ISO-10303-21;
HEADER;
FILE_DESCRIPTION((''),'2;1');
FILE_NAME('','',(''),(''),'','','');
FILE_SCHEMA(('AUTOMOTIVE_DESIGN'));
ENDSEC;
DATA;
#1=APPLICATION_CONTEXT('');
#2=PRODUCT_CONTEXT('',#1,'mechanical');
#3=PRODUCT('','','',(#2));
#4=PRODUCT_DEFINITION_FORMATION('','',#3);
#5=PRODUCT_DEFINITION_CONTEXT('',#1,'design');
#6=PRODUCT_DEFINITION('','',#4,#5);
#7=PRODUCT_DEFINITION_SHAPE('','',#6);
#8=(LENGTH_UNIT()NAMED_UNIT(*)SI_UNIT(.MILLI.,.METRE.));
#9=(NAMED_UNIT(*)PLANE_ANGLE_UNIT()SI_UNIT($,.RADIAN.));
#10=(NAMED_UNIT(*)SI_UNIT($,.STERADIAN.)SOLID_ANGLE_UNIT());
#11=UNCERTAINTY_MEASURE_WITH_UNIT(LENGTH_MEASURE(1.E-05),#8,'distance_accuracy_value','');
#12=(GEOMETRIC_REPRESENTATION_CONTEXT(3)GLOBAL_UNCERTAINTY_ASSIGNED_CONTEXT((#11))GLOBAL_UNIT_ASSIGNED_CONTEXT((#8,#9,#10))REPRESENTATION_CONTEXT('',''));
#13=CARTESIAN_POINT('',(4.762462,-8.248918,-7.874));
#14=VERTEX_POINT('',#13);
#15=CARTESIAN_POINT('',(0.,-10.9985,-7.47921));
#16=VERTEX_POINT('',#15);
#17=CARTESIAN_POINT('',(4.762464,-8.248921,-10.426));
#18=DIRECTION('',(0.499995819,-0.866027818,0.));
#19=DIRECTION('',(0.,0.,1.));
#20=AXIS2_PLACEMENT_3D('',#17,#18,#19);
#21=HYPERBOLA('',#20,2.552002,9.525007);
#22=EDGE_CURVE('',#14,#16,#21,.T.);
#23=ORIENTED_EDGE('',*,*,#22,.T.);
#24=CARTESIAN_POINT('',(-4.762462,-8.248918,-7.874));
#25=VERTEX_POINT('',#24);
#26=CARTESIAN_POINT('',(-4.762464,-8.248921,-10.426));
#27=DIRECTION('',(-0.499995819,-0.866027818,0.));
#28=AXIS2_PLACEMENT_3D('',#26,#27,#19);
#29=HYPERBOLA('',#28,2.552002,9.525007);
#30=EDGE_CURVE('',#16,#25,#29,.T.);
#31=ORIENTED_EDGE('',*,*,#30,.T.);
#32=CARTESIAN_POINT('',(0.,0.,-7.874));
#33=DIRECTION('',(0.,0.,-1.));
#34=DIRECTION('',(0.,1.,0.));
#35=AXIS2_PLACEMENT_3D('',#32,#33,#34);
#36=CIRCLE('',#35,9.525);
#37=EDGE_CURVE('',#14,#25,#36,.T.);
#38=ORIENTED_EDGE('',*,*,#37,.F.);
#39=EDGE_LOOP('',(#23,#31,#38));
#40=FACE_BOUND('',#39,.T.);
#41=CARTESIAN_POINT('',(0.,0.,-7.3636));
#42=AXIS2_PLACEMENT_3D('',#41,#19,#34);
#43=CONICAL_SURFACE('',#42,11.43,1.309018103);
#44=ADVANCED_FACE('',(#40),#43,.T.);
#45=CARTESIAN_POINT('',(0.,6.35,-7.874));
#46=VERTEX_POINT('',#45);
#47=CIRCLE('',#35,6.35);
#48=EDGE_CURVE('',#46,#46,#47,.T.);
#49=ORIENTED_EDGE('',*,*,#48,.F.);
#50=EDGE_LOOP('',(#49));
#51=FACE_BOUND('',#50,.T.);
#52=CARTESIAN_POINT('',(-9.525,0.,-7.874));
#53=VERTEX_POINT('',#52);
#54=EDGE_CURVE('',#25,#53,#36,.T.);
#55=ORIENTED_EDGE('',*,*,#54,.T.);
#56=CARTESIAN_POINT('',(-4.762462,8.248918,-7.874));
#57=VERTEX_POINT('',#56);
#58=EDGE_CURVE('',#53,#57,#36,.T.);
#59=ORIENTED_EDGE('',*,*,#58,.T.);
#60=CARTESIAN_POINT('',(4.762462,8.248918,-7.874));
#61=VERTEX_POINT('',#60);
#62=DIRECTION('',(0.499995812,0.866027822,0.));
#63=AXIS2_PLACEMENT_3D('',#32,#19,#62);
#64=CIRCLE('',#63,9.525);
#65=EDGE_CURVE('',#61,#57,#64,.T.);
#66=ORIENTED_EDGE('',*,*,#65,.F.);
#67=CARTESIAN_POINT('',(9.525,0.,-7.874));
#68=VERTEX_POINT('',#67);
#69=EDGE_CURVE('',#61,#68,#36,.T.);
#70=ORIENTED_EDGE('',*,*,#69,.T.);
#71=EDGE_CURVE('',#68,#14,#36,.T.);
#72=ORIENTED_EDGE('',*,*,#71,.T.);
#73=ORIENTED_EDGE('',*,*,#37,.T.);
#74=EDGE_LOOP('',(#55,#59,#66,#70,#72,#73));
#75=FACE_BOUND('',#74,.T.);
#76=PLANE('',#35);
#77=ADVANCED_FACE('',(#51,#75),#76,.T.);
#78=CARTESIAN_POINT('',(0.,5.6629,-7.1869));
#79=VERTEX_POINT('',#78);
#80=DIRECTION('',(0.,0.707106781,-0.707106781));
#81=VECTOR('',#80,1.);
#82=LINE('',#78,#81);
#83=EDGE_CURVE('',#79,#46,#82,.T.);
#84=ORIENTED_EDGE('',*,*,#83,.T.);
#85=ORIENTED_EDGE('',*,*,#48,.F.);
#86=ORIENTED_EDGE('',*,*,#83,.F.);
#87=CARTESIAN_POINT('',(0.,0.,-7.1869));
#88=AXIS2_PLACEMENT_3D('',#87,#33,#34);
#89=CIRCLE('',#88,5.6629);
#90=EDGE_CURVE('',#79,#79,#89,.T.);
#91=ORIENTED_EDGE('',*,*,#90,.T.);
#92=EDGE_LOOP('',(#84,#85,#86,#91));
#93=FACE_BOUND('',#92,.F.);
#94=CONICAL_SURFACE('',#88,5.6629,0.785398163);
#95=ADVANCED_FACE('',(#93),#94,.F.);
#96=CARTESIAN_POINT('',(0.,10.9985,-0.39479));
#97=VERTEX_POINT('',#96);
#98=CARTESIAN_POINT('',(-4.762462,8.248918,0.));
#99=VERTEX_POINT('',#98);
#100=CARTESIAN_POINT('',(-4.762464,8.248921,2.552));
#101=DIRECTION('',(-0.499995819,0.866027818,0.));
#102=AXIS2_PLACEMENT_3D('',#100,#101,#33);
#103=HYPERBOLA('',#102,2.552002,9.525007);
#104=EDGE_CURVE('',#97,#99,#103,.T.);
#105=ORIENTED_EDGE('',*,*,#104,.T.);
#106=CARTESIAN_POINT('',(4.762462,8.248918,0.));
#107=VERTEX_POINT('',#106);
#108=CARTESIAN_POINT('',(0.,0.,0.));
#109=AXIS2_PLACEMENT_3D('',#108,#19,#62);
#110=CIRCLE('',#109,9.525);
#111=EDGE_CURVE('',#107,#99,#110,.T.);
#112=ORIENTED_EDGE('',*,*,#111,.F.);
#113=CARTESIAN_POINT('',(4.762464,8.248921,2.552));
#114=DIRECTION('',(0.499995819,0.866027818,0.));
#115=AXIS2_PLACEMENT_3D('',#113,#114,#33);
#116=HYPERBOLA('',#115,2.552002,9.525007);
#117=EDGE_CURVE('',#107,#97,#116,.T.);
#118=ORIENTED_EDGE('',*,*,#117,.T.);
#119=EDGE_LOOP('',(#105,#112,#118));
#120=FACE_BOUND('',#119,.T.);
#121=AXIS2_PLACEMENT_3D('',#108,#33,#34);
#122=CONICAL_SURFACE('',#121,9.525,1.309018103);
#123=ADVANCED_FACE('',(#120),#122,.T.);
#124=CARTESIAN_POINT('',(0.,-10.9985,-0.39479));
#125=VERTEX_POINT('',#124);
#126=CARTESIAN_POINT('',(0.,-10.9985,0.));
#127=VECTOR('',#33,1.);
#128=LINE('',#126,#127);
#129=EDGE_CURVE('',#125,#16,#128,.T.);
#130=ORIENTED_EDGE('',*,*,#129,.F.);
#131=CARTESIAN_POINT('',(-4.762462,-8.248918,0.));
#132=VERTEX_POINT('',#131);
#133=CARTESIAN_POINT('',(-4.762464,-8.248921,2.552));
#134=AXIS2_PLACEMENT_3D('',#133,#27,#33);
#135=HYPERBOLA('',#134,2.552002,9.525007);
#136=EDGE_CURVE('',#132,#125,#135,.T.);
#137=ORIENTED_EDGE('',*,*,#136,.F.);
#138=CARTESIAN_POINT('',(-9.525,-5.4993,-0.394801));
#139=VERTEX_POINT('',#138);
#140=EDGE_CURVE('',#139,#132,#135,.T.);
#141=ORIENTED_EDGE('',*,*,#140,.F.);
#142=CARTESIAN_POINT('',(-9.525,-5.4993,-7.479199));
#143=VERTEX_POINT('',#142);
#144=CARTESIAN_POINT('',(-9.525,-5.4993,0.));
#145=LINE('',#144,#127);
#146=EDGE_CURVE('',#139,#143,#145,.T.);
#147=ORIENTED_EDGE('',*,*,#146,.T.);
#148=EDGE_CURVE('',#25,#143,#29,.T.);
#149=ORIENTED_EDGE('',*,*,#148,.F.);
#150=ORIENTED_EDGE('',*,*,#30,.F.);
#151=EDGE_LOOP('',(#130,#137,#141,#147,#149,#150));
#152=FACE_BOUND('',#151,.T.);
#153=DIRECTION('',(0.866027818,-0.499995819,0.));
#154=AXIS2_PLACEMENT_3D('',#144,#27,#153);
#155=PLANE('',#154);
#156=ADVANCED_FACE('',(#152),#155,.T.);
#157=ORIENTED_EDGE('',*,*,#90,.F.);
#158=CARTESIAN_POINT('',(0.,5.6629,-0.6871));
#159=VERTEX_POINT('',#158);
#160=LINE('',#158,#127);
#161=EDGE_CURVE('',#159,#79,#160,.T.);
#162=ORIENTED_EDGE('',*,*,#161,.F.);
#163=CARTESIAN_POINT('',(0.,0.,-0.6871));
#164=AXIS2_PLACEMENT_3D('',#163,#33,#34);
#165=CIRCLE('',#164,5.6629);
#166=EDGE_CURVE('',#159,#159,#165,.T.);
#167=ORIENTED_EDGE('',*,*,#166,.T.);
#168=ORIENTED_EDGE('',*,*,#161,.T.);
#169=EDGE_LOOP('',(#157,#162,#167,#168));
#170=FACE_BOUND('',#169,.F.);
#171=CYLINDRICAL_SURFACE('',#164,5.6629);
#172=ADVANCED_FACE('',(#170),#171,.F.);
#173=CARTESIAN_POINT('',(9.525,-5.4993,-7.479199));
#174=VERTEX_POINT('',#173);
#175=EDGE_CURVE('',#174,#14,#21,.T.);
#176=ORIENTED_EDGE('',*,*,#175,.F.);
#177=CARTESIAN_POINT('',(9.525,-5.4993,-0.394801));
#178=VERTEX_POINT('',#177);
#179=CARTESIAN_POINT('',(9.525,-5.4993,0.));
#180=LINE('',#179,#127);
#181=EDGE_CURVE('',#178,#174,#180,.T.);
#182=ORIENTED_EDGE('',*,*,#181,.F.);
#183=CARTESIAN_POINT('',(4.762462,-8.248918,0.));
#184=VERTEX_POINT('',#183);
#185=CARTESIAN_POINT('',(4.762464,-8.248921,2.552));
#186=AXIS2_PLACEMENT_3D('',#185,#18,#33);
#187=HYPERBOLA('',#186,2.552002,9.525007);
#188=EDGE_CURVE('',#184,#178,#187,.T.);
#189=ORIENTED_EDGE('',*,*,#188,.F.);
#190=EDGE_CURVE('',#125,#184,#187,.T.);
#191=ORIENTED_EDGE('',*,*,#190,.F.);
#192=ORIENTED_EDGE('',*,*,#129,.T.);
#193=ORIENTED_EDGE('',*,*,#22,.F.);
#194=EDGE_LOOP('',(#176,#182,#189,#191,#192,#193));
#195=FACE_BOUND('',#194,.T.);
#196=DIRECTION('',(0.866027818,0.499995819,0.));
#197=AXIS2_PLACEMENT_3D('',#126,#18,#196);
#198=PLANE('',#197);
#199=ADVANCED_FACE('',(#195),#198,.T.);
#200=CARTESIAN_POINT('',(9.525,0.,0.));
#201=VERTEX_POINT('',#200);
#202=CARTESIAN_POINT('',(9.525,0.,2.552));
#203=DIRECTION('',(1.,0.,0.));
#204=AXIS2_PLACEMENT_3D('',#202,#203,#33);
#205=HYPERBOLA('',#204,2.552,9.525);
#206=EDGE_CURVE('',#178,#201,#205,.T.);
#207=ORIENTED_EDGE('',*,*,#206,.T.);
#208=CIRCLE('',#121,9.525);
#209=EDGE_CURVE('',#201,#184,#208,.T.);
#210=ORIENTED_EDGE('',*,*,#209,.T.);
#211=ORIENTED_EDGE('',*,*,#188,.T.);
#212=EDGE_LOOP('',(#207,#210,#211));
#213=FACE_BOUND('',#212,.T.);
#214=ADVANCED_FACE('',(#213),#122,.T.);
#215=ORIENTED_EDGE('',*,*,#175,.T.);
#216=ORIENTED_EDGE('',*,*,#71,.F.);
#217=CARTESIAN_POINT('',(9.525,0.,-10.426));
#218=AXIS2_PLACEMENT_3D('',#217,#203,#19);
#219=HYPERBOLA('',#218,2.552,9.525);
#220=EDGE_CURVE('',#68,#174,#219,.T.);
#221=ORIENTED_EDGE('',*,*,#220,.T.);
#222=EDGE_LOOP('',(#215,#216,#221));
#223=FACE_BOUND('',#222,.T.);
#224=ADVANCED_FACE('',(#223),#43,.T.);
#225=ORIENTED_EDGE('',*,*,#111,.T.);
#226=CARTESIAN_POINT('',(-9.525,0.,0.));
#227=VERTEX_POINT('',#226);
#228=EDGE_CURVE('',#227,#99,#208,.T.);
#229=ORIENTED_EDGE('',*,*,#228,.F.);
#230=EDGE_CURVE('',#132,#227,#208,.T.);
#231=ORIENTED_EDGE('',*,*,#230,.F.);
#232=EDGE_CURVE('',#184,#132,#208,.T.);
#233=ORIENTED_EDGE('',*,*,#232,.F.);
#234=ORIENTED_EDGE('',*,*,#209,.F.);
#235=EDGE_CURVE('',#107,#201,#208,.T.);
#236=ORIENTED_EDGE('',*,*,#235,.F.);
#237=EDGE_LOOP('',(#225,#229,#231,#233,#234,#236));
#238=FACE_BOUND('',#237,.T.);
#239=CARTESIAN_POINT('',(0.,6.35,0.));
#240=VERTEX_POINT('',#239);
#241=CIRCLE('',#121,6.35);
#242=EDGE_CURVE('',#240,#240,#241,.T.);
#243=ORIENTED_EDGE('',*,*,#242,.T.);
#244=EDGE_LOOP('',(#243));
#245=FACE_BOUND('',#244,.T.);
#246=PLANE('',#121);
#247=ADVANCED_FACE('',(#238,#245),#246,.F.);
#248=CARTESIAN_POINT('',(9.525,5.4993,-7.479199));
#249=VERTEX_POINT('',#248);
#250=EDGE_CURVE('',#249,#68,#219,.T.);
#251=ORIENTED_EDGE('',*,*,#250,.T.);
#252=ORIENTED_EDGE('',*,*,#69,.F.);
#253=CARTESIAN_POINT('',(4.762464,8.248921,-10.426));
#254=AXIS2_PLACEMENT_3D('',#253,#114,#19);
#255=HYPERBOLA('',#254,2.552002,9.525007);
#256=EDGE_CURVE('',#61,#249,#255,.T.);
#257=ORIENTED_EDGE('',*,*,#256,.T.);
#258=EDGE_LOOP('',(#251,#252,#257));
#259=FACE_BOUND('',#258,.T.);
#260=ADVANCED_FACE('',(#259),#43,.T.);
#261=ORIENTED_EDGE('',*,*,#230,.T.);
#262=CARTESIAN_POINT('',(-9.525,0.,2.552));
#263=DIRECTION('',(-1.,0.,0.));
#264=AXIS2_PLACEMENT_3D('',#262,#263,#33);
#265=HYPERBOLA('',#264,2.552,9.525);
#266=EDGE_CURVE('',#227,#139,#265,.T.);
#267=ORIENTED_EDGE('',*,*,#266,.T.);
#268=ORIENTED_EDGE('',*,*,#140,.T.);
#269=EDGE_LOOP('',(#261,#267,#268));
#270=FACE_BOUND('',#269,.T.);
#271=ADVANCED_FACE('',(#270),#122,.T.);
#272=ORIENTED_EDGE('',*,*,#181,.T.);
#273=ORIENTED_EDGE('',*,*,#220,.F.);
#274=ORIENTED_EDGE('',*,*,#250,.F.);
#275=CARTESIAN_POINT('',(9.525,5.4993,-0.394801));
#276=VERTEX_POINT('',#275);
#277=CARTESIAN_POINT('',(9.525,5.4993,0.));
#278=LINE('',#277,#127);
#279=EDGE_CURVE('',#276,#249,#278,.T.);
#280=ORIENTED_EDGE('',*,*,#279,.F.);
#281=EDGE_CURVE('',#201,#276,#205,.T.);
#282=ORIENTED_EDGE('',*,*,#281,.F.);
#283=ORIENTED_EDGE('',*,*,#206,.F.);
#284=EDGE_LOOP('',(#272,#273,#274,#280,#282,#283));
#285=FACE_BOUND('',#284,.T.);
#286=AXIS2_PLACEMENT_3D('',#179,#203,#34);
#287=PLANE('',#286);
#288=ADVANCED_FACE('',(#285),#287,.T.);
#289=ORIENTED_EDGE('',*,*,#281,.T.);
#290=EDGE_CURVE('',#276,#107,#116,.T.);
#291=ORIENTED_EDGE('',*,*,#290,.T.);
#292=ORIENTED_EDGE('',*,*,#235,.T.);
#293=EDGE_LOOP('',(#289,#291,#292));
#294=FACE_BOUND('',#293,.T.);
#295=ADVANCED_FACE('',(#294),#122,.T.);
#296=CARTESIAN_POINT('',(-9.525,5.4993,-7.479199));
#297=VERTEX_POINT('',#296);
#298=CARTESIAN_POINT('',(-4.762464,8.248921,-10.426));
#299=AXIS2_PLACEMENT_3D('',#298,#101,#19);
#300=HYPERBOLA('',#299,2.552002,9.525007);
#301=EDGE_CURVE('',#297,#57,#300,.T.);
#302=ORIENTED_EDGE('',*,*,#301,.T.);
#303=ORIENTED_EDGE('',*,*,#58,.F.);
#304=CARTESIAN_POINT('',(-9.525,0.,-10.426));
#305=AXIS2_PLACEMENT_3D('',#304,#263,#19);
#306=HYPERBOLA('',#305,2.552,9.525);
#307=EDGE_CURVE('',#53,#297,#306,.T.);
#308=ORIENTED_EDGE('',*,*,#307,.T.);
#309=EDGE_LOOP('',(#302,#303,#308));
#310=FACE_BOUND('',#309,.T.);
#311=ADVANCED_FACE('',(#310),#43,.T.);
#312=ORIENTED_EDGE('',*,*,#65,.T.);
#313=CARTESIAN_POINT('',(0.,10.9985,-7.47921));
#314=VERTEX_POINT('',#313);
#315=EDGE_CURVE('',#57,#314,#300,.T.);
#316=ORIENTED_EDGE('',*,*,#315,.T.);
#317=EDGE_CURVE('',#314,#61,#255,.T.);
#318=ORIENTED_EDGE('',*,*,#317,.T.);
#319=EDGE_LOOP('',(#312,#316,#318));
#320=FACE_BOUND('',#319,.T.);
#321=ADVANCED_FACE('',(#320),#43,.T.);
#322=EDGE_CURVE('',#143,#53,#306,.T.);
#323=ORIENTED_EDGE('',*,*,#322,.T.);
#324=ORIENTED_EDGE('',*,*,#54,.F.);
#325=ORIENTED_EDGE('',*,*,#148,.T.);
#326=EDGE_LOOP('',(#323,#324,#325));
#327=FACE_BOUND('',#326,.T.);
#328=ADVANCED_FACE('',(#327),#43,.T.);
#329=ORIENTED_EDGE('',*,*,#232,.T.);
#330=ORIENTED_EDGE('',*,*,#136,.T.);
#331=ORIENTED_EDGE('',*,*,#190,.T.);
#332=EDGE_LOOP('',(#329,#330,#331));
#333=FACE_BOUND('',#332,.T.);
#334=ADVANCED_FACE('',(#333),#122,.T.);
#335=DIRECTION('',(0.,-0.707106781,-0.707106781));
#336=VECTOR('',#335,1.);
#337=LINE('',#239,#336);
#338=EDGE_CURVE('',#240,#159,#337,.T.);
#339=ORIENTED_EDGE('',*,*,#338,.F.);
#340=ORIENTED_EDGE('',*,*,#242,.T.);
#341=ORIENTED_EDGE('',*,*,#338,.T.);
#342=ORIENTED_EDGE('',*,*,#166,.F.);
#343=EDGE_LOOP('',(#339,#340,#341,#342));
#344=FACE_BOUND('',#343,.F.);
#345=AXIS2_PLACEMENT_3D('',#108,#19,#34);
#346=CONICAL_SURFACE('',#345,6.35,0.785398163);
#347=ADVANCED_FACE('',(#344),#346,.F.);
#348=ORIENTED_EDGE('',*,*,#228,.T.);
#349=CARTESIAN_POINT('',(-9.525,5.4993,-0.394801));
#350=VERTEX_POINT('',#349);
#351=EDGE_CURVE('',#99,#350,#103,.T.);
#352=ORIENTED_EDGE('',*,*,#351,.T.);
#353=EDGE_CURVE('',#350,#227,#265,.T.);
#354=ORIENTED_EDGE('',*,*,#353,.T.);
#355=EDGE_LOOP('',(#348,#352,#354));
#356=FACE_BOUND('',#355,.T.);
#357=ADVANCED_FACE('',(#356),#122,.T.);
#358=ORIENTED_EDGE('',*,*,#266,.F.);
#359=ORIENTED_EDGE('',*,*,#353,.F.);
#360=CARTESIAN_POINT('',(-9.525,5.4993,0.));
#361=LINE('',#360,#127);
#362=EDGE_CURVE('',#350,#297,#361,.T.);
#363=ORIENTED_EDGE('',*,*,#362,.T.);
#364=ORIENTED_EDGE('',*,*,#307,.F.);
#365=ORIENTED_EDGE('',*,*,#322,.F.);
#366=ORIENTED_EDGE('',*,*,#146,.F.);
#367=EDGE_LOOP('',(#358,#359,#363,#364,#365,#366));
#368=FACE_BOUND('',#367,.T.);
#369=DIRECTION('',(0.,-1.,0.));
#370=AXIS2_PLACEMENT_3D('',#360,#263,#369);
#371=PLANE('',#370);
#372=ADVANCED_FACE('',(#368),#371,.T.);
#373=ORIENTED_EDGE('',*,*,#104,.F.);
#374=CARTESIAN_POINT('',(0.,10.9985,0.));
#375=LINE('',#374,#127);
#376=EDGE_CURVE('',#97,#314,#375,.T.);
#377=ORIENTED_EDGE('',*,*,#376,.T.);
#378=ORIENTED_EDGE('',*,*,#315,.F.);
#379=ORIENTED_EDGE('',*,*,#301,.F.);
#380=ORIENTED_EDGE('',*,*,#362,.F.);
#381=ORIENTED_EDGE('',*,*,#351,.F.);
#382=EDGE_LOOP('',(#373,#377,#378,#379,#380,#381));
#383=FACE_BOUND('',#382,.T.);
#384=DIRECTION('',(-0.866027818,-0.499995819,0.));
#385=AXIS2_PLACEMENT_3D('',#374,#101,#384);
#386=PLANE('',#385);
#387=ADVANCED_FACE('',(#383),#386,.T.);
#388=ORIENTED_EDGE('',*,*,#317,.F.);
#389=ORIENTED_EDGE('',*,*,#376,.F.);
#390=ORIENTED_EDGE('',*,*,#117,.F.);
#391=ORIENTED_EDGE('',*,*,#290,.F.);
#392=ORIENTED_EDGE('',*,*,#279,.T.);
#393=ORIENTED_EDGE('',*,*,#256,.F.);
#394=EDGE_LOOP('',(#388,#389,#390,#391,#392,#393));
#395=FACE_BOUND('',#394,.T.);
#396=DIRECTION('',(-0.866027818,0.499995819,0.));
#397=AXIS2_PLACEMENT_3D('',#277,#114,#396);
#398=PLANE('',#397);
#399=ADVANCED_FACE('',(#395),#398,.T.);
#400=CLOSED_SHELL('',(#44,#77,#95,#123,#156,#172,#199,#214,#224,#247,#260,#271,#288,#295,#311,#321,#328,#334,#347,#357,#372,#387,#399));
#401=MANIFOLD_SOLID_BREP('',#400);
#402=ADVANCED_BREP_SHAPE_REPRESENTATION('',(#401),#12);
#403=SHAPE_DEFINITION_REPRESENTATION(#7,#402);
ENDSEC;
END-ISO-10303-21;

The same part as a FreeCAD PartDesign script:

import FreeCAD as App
import Part
import Sketcher
from FreeCAD import Vector
Q = App.Units.Quantity

doc = App.newDocument("Part")
body = doc.addObject("PartDesign::Body", "Body")

# Sketch on YZ plane
sketch1 = doc.addObject("Sketcher::SketchObject", "Sketch")
body.addObject(sketch1)
sketch1.AttachmentSupport = (doc.YZ_Plane, [""])
sketch1.MapMode = "FlatFace"
sketch1.addGeometry([
    Part.LineSegment(Vector(0, 0, 0), Vector(0, -7.9, 0)),  # 0
    Part.LineSegment(Vector(0, -7.9, 0), Vector(9.5, -7.9, 0)),  # 1
    Part.LineSegment(Vector(9.5, -7.9, 0), Vector(11.4, -7.4, 0)),  # 2
    Part.LineSegment(Vector(11.4, -7.4, 0), Vector(11.4, -0.5, 0)),  # 3
    Part.LineSegment(Vector(11.4, -0.5, 0), Vector(9.5, 0, 0)),  # 4
    Part.LineSegment(Vector(9.5, 0, 0), Vector(0, 0, 0)),  # 5
], False)
sketch1.addConstraint([
    Sketcher.Constraint("Coincident", 0, 2, 1, 1),
    Sketcher.Constraint("Coincident", 1, 2, 2, 1),
    Sketcher.Constraint("Coincident", 2, 2, 3, 1),
    Sketcher.Constraint("Coincident", 3, 2, 4, 1),
    Sketcher.Constraint("Coincident", 4, 2, 5, 1),
    Sketcher.Constraint("Coincident", 5, 2, 0, 1),
    Sketcher.Constraint("Vertical", 0),
    Sketcher.Constraint("Horizontal", 1),
    Sketcher.Constraint("Vertical", 3),
    Sketcher.Constraint("Horizontal", 5),
    Sketcher.Constraint("Coincident", 5, 2, -1, 1),
    Sketcher.Constraint("Vertical", 1, 2, 4, 2),
    Sketcher.Constraint("Equal", 2, 4),
    Sketcher.Constraint("DistanceY", 0, 2, 0, 1, Q("0.31 in")),
    Sketcher.Constraint("DistanceX", 1, 1, 1, 2, Q("0.375 in")),
    Sketcher.Constraint("DistanceX", -1, 1, 2, 2, Q("0.45 in")),
    Sketcher.Constraint("DistanceY", 3, 1, 3, 2, Q("0.2698 in")),
])
revolution = doc.addObject("PartDesign::Revolution", "Revolution")
body.addObject(revolution)
revolution.Profile = sketch1
revolution.ReferenceAxis = (sketch1, ["V_Axis"])
revolution.Angle = 360

# Sketch on XY plane
sketch2 = doc.addObject("Sketcher::SketchObject", "Sketch001")
body.addObject(sketch2)
sketch2.AttachmentSupport = (doc.XY_Plane, [""])
sketch2.MapMode = "FlatFace"
sketch2.addGeometry([
    Part.LineSegment(Vector(-19, 19, 0), Vector(-19, -19, 0)),  # 0
    Part.LineSegment(Vector(-19, -19, 0), Vector(19, -19, 0)),  # 1
    Part.LineSegment(Vector(19, -19, 0), Vector(19, 19, 0)),  # 2
    Part.LineSegment(Vector(19, 19, 0), Vector(-19, 19, 0)),  # 3
    Part.LineSegment(Vector(0, -11, 0), Vector(-10, -5, 0)),  # 4
    Part.LineSegment(Vector(-10, -5, 0), Vector(-10, 5, 0)),  # 5
    Part.LineSegment(Vector(-10, 5, 0), Vector(0, 11, 0)),  # 6
    Part.LineSegment(Vector(0, 11, 0), Vector(10, 5, 0)),  # 7
    Part.LineSegment(Vector(10, 5, 0), Vector(10, -5, 0)),  # 8
    Part.LineSegment(Vector(10, -5, 0), Vector(0, -11, 0)),  # 9
], False)
sketch2.addConstraint([
    Sketcher.Constraint("Coincident", 0, 2, 1, 1),
    Sketcher.Constraint("Coincident", 1, 2, 2, 1),
    Sketcher.Constraint("Coincident", 2, 2, 3, 1),
    Sketcher.Constraint("Coincident", 3, 2, 0, 1),
    Sketcher.Constraint("Coincident", 4, 2, 5, 1),
    Sketcher.Constraint("Coincident", 5, 2, 6, 1),
    Sketcher.Constraint("Coincident", 6, 2, 7, 1),
    Sketcher.Constraint("Coincident", 7, 2, 8, 1),
    Sketcher.Constraint("Coincident", 8, 2, 9, 1),
    Sketcher.Constraint("Coincident", 9, 2, 4, 1),
    Sketcher.Constraint("Vertical", 0),
    Sketcher.Constraint("Horizontal", 1),
    Sketcher.Constraint("Vertical", 2),
    Sketcher.Constraint("Horizontal", 3),
    Sketcher.Constraint("Vertical", 5),
    Sketcher.Constraint("Vertical", 8),
    Sketcher.Constraint("Symmetric", 0, 2, 2, 2, -1, 1),
    Sketcher.Constraint("Symmetric", 4, 2, 7, 2, -1, 1),
    Sketcher.Constraint("Symmetric", 6, 2, 9, 2, -1, 1),
    Sketcher.Constraint("PointOnObject", 6, 2, -2),
    Sketcher.Constraint("Parallel", 6, 9),
    Sketcher.Constraint("Horizontal", 5, 2, 7, 2),
    Sketcher.Constraint("Equal", 3, 0),
    Sketcher.Constraint("DistanceX", 1, 1, 1, 2, Q("1.5 in")),
    Sketcher.Constraint("Angle", 4, Q("150.0003 deg")),
    Sketcher.Constraint("DistanceX", 5, 2, 7, 2, Q("0.75 in")),
    Sketcher.Constraint("DistanceY", -1, 1, 6, 2, Q("0.433 in")),
])
pocket1 = doc.addObject("PartDesign::Pocket", "Pocket")
body.addObject(pocket1)
pocket1.Profile = sketch2
pocket1.Length = Q("0.31 in")

# Sketch on YZ plane
sketch3 = doc.addObject("Sketcher::SketchObject", "Sketch002")
body.addObject(sketch3)
sketch3.AttachmentSupport = (doc.YZ_Plane, [""])
sketch3.MapMode = "FlatFace"
sketch3.addGeometry([
    Part.LineSegment(Vector(0, 0, 0), Vector(0, -7.9, 0)),  # 0
    Part.LineSegment(Vector(0, -7.9, 0), Vector(6.3, -7.9, 0)),  # 1
    Part.LineSegment(Vector(6.3, -7.9, 0), Vector(5.7, -7.2, 0)),  # 2
    Part.LineSegment(Vector(5.7, -7.2, 0), Vector(5.7, -0.7, 0)),  # 3
    Part.LineSegment(Vector(5.7, -0.7, 0), Vector(6.3, 0, 0)),  # 4
    Part.LineSegment(Vector(6.3, 0, 0), Vector(0, 0, 0)),  # 5
], False)
sketch3.addConstraint([
    Sketcher.Constraint("Coincident", 0, 2, 1, 1),
    Sketcher.Constraint("Coincident", 1, 2, 2, 1),
    Sketcher.Constraint("Coincident", 2, 2, 3, 1),
    Sketcher.Constraint("Coincident", 3, 2, 4, 1),
    Sketcher.Constraint("Coincident", 4, 2, 5, 1),
    Sketcher.Constraint("Coincident", 5, 2, 0, 1),
    Sketcher.Constraint("Vertical", 0),
    Sketcher.Constraint("Horizontal", 1),
    Sketcher.Constraint("Vertical", 3),
    Sketcher.Constraint("Horizontal", 5),
    Sketcher.Constraint("Coincident", 5, 2, -1, 1),
    Sketcher.Constraint("Perpendicular", 2, 4),
    Sketcher.Constraint("Vertical", 1, 2, 4, 2),
    Sketcher.Constraint("Equal", 2, 4),
    Sketcher.Constraint("DistanceX", 1, 1, 1, 2, Q("0.25 in")),
    Sketcher.Constraint("DistanceY", 0, 2, 0, 1, Q("0.31 in")),
    Sketcher.Constraint("DistanceY", 3, 1, 3, 2, Q("0.2559 in")),
])
groove = doc.addObject("PartDesign::Groove", "Groove")
body.addObject(groove)
groove.Profile = sketch3
groove.ReferenceAxis = (sketch3, ["V_Axis"])
groove.Angle = 360

doc.recompute()
